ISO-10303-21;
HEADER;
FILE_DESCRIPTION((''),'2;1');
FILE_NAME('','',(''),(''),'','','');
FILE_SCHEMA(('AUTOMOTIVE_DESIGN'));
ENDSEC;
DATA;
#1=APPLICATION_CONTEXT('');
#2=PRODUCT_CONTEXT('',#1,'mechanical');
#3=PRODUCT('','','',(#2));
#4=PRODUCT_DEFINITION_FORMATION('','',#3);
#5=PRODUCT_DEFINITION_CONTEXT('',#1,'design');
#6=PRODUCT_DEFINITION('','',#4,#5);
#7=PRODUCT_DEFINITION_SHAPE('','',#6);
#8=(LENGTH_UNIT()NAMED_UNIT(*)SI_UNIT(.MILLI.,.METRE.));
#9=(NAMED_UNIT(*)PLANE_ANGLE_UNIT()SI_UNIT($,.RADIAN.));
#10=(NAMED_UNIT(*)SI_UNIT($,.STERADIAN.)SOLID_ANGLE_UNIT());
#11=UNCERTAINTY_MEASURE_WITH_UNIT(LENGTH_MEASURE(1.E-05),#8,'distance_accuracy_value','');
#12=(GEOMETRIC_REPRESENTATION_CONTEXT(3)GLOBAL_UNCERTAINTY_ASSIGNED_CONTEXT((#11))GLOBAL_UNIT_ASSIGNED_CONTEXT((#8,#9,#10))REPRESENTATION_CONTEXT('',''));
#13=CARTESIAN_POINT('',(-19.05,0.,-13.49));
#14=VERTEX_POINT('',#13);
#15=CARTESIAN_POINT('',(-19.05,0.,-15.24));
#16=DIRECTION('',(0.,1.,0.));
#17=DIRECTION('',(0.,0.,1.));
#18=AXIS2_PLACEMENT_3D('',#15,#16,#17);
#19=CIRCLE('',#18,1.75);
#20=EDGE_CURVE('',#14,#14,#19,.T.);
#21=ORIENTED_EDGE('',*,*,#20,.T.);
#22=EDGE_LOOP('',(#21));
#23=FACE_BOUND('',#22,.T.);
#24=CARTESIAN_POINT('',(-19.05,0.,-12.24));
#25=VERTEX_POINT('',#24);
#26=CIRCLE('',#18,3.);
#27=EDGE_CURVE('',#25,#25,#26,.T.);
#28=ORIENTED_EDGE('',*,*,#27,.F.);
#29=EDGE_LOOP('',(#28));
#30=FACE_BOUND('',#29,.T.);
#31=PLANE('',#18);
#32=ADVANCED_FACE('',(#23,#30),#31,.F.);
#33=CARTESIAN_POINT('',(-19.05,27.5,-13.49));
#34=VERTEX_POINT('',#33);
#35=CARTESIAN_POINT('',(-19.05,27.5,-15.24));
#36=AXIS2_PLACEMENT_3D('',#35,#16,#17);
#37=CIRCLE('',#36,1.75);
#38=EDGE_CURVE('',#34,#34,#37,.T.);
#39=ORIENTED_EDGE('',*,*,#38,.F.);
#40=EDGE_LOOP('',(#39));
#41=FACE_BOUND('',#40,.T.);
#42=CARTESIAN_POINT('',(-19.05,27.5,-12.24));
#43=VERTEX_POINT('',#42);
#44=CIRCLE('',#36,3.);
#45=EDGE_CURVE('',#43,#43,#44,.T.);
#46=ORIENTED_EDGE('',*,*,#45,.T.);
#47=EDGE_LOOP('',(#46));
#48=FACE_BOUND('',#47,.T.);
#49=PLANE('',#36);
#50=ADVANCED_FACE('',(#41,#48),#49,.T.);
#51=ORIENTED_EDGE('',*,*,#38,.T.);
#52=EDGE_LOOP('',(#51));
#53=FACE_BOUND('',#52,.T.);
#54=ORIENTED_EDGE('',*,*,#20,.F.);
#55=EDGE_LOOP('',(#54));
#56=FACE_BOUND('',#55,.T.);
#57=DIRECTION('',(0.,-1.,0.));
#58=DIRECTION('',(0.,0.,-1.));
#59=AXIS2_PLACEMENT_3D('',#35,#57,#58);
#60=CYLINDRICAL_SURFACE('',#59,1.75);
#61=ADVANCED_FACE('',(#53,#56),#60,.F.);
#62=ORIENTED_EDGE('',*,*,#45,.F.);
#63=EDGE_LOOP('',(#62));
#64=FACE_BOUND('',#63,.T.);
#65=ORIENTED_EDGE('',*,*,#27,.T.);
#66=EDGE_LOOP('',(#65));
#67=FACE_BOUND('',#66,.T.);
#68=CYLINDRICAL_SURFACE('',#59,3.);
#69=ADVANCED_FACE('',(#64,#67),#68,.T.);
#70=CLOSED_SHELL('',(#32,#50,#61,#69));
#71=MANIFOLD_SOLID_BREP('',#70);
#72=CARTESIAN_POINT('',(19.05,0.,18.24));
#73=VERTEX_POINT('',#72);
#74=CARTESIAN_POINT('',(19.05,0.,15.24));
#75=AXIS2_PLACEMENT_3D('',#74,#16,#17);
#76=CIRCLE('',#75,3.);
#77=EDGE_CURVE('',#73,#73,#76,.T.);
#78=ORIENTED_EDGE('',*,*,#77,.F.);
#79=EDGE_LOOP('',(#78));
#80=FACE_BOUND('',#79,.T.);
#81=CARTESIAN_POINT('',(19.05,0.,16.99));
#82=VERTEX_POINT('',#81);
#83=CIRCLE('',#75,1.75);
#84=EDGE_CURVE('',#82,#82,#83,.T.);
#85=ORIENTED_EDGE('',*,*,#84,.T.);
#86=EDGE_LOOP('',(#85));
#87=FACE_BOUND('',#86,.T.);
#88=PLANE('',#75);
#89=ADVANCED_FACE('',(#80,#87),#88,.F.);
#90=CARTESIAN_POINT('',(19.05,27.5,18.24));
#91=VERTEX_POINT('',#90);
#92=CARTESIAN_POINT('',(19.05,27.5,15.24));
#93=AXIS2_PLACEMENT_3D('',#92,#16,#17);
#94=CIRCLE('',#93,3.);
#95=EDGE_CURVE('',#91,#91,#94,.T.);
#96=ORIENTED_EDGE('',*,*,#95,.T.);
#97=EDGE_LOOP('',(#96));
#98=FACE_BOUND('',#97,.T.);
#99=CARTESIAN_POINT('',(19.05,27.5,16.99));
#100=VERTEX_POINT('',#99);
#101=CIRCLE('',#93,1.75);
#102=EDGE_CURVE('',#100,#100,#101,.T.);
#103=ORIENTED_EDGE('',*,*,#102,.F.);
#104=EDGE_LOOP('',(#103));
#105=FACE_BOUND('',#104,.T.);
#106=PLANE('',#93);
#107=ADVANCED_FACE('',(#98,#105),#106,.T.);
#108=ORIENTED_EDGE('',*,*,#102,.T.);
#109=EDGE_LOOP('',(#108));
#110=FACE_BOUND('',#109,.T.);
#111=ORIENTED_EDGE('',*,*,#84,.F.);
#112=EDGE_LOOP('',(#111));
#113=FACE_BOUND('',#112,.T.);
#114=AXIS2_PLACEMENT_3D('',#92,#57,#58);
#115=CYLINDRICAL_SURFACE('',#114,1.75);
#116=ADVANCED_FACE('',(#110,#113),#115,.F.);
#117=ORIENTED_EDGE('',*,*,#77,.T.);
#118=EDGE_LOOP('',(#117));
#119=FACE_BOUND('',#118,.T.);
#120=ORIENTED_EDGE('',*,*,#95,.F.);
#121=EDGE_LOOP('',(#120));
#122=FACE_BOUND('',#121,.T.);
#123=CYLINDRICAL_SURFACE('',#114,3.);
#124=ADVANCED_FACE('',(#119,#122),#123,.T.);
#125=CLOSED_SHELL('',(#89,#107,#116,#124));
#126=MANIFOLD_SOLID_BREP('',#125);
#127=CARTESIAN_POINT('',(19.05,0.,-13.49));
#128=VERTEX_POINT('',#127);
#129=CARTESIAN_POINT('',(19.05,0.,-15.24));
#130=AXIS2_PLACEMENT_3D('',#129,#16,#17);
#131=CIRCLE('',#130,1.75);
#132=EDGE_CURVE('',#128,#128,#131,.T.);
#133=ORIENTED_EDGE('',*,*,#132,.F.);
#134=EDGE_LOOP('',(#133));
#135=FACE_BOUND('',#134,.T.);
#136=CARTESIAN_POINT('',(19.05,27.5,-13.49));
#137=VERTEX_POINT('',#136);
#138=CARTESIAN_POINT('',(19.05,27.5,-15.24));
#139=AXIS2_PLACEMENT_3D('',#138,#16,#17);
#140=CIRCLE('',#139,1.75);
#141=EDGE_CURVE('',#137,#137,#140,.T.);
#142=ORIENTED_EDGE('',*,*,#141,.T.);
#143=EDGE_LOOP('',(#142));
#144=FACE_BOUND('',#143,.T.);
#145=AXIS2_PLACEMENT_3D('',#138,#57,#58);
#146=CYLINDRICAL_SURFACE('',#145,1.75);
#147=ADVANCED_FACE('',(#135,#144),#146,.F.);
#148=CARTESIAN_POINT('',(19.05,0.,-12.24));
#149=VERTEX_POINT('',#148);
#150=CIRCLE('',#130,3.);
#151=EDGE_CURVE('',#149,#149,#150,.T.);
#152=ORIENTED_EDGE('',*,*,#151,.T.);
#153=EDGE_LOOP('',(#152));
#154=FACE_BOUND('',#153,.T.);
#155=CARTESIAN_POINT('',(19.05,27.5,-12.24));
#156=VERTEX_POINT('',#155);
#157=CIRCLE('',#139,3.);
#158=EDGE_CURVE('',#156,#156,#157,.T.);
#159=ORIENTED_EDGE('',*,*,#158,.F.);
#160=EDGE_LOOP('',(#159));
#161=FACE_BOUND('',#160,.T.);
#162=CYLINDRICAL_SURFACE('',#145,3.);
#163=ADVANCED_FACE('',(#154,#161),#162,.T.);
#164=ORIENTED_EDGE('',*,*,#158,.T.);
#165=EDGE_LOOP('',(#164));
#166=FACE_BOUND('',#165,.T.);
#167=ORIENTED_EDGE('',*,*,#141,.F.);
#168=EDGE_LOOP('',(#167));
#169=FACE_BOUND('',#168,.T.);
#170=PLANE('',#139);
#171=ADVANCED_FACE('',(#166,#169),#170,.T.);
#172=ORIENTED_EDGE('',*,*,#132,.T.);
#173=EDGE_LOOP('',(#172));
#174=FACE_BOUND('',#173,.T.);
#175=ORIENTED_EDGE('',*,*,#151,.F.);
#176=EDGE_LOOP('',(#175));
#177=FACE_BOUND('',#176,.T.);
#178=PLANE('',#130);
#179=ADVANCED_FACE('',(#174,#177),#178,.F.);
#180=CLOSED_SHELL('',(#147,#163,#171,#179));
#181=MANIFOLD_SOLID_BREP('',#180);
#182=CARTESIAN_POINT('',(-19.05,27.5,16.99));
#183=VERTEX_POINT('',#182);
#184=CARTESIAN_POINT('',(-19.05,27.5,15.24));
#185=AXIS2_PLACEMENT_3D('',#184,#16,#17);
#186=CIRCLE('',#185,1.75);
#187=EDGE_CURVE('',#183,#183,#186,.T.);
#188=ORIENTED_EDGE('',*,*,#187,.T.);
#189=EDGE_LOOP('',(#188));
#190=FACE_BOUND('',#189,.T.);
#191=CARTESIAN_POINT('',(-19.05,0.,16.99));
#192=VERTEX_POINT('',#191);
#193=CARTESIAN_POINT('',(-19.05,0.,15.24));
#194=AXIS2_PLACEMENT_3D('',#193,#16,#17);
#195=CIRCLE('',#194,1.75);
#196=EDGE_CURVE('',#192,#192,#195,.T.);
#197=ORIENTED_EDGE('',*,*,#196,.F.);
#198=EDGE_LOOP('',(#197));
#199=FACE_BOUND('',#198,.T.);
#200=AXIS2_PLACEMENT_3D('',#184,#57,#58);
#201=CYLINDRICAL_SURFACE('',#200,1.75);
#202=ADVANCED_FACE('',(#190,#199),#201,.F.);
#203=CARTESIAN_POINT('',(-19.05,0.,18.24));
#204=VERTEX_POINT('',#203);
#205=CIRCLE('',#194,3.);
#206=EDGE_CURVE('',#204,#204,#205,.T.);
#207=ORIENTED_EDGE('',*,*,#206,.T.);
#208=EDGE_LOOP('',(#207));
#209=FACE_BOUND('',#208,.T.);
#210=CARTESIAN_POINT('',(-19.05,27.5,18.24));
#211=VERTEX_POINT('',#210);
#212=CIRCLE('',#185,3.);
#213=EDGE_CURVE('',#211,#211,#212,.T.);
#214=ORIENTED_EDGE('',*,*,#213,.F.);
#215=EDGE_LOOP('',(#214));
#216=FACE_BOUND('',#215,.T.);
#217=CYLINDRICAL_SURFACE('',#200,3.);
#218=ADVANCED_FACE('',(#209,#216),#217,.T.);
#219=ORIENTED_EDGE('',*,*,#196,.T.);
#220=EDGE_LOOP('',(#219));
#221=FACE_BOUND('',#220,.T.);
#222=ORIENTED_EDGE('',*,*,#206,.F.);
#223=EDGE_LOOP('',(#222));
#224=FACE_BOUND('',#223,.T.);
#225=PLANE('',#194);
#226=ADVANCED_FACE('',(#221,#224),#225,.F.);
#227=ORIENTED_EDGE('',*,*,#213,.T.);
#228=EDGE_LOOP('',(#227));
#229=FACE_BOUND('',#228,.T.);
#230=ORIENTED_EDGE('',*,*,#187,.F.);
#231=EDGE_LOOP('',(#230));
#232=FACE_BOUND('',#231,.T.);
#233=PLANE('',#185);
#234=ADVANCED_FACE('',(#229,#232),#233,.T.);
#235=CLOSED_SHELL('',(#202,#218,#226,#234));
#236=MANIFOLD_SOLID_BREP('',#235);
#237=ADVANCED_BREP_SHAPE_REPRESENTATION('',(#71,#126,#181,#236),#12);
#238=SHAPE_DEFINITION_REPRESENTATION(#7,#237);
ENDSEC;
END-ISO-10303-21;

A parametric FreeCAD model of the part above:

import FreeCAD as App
import Part
import Sketcher

V = App.Vector

doc = App.newDocument("Part")
body = doc.addObject("PartDesign::Body", "Body")

sketch1 = body.newObject("Sketcher::SketchObject", "Sketch")
sketch1.AttachmentSupport = (doc.getObject("XZ_Plane"), [""])
sketch1.MapMode = "FlatFace"
sketch1.addGeometry([
    Part.Circle(V(-19.1, -15.2, 0), V(0, 0, 1), 3),
    Part.Circle(V(-19.1, -15.2, 0), V(0, 0, 1), 1.8),
], False)
sketch1.addConstraint([
    Sketcher.Constraint("Coincident", 1, 3, 0, 3),
    Sketcher.Constraint("Diameter", 0, 6.0),
    Sketcher.Constraint("Diameter", 1, 3.5),
    Sketcher.Constraint("DistanceX", 0, 3, -1, 1, 19.05),
    Sketcher.Constraint("DistanceY", 0, 3, -1, 1, 15.24),
])
pad1 = body.newObject("PartDesign::Pad", "Pad")
pad1.Profile = sketch1
pad1.Length = 27.5
pad1.Reversed = True
body2 = doc.addObject("PartDesign::Body", "Body001")

sketch2 = body2.newObject("Sketcher::SketchObject", "Sketch001")
sketch2.AttachmentSupport = (doc.getObject("XZ_Plane001"), [""])
sketch2.MapMode = "FlatFace"
sketch2.addGeometry([
    Part.Circle(V(19.1, -15.2, 0), V(0, 0, 1), 3),
    Part.Circle(V(19.1, -15.2, 0), V(0, 0, 1), 1.8),
], False)
sketch2.addConstraint([
    Sketcher.Constraint("Coincident", 1, 3, 0, 3),
    Sketcher.Constraint("Diameter", 0, 6.0),
    Sketcher.Constraint("Diameter", 1, 3.5),
    Sketcher.Constraint("DistanceX", -1, 1, 0, 3, 19.05),
    Sketcher.Constraint("DistanceY", 0, 3, -1, 1, 15.24),
])
pad2 = body2.newObject("PartDesign::Pad", "Pad001")
pad2.Profile = sketch2
pad2.Length = 27.5
pad2.Reversed = True
body3 = doc.addObject("PartDesign::Body", "Body002")

sketch3 = body3.newObject("Sketcher::SketchObject", "Sketch002")
sketch3.AttachmentSupport = (doc.getObject("XZ_Plane002"), [""])
sketch3.MapMode = "FlatFace"
sketch3.addGeometry([
    Part.Circle(V(19.1, 15.2, 0), V(0, 0, 1), 3),
    Part.Circle(V(19.1, 15.2, 0), V(0, 0, 1), 1.8),
], False)
sketch3.addConstraint([
    Sketcher.Constraint("Coincident", 1, 3, 0, 3),
    Sketcher.Constraint("Diameter", 0, 6.0),
    Sketcher.Constraint("Diameter", 1, 3.5),
    Sketcher.Constraint("DistanceX", -1, 1, 0, 3, 19.05),
    Sketcher.Constraint("DistanceY", -1, 1, 0, 3, 15.24),
])
pad3 = body3.newObject("PartDesign::Pad", "Pad002")
pad3.Profile = sketch3
pad3.Length = 27.5
pad3.Reversed = True
body4 = doc.addObject("PartDesign::Body", "Body003")

sketch4 = body4.newObject("Sketcher::SketchObject", "Sketch003")
sketch4.AttachmentSupport = (doc.getObject("XZ_Plane003"), [""])
sketch4.MapMode = "FlatFace"
sketch4.addGeometry([
    Part.Circle(V(-19.1, 15.2, 0), V(0, 0, 1), 3),
    Part.Circle(V(-19.1, 15.2, 0), V(0, 0, 1), 1.8),
], False)
sketch4.addConstraint([
    Sketcher.Constraint("Coincident", 1, 3, 0, 3),
    Sketcher.Constraint("Diameter", 0, 6.0),
    Sketcher.Constraint("Diameter", 1, 3.5),
    Sketcher.Constraint("DistanceX", 0, 3, -1, 1, 19.05),
    Sketcher.Constraint("DistanceY", -1, 1, 0, 3, 15.24),
])
pad4 = body4.newObject("PartDesign::Pad", "Pad003")
pad4.Profile = sketch4
pad4.Length = 27.5
pad4.Reversed = True

doc.recompute()
